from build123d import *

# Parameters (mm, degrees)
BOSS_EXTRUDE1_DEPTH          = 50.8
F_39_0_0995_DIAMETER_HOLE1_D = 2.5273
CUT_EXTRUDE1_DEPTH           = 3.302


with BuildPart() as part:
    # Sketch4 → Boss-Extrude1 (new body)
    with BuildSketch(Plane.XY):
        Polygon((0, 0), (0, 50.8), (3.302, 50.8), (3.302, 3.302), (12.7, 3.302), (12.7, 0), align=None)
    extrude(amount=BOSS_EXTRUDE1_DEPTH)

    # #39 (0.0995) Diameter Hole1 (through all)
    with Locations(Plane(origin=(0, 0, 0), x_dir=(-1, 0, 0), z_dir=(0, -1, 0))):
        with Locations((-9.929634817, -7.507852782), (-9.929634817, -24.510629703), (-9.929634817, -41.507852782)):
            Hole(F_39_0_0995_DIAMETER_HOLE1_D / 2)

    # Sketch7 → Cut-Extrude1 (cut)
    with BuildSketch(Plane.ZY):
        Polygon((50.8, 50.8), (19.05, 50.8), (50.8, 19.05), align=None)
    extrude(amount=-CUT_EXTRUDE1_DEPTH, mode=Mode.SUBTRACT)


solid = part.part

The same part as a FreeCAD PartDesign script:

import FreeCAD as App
import Part
import Sketcher
Q = App.Units.Quantity


def add_polygon(sketch, points):
    """Adds a closed chain of lines whose ends are joined by coincident constraints."""
    first, n = sketch.GeometryCount, len(points)
    for a, b in zip(points, points[1:] + points[:1]):
        sketch.addGeometry(Part.LineSegment(App.Vector(*a, 0), App.Vector(*b, 0)), False)
    for i in range(n):
        sketch.addConstraint(Sketcher.Constraint("Coincident", first + i, 2, first + (i + 1) % n, 1))

doc = App.newDocument("Part")
body = doc.addObject("PartDesign::Body", "Body")

# Sketch on XY plane
sketch1 = body.newObject("Sketcher::SketchObject", "Sketch")
sketch1.AttachmentSupport = (doc.getObject("XY_Plane"), [""])
sketch1.MapMode = "FlatFace"
add_polygon(sketch1, [(0, 50.8), (0, 0), (12.7, 0), (12.7, 3.3), (3.3, 3.3), (3.3, 50.8)])  # lines 0-5
sketch1.addConstraint(Sketcher.Constraint("Vertical", 0))
sketch1.addConstraint(Sketcher.Constraint("Horizontal", 1))
sketch1.addConstraint(Sketcher.Constraint("Vertical", 2))
sketch1.addConstraint(Sketcher.Constraint("Horizontal", 3))
sketch1.addConstraint(Sketcher.Constraint("Vertical", 4))
sketch1.addConstraint(Sketcher.Constraint("Horizontal", 5))
sketch1.addConstraint(Sketcher.Constraint("Coincident", 0, 2, -1, 1))
sketch1.addConstraint(Sketcher.Constraint("Equal", 5, 2))
sketch1.addConstraint(Sketcher.Constraint("DistanceY", 0, 2, 0, 1, Q("2 in")))
sketch1.addConstraint(Sketcher.Constraint("DistanceX", 1, 1, 1, 2, Q("0.5 in")))
sketch1.addConstraint(Sketcher.Constraint("DistanceX", 3, 2, 3, 1, Q("0.37 in")))
pad1 = body.newObject("PartDesign::Pad", "Pad")
pad1.Profile = sketch1
pad1.Length = Q("2 in")

# Sketch on XZ plane
sketch2 = body.newObject("Sketcher::SketchObject", "Sketch001")
sketch2.AttachmentSupport = (doc.getObject("XZ_Plane"), [""])
sketch2.MapMode = "FlatFace"
sketch2.addGeometry(Part.Circle(App.Vector(9.9, 7.5, 0), App.Vector(0, 0, 1), 1.3), False)
sketch2.addGeometry(Part.Circle(App.Vector(9.9, 24.5, 0), App.Vector(0, 0, 1), 1.3), False)
sketch2.addGeometry(Part.Circle(App.Vector(9.9, 41.5, 0), App.Vector(0, 0, 1), 1.3), False)
sketch2.addConstraint(Sketcher.Constraint("Equal", 0, 1))
sketch2.addConstraint(Sketcher.Constraint("Equal", 1, 2))
sketch2.addConstraint(Sketcher.Constraint("Vertical", 0, 3, 1, 3))
sketch2.addConstraint(Sketcher.Constraint("Vertical", 1, 3, 2, 3))
sketch2.addConstraint(Sketcher.Constraint("Diameter", 0, Q("0.0995 in")))
sketch2.addConstraint(Sketcher.Constraint("DistanceY", 0, 3, 2, 3, 34.0))
sketch2.addConstraint(Sketcher.Constraint("DistanceY", -1, 1, 1, 3, 24.51063))
sketch2.addConstraint(Sketcher.Constraint("DistanceX", -1, 1, 0, 3, 9.929635))
sketch2.addConstraint(Sketcher.Constraint("DistanceY", -1, 1, 0, 3, 7.507853))
doc.recompute()
hole = body.newObject("PartDesign::Hole", "Hole")
hole.Profile = sketch2
hole.ThreadType = "None"
hole.Diameter = Q("0.0995 in")
hole.DepthType = "ThroughAll"

# Sketch on YZ plane
sketch3 = body.newObject("Sketcher::SketchObject", "Sketch002")
sketch3.AttachmentSupport = (doc.getObject("YZ_Plane"), [""])
sketch3.MapMode = "FlatFace"
add_polygon(sketch3, [(51, 51), (51, 19), (19, 51)])  # lines 0-2
sketch3.addConstraint(Sketcher.Constraint("Vertical", 0))
sketch3.addConstraint(Sketcher.Constraint("Horizontal", 2))
sketch3.addConstraint(Sketcher.Constraint("Equal", 2, 0))
sketch3.addConstraint(Sketcher.Constraint("DistanceX", -1, 1, 0, 2, Q("2 in")))
sketch3.addConstraint(Sketcher.Constraint("DistanceY", -1, 1, 1, 2, Q("2 in")))
sketch3.addConstraint(Sketcher.Constraint("DistanceX", 2, 1, 2, 2, Q("1.25 in")))
pocket1 = body.newObject("PartDesign::Pocket", "Pocket")
pocket1.Profile = sketch3
pocket1.Length = Q("0.13 in")
pocket1.Reversed = True

doc.recompute()
